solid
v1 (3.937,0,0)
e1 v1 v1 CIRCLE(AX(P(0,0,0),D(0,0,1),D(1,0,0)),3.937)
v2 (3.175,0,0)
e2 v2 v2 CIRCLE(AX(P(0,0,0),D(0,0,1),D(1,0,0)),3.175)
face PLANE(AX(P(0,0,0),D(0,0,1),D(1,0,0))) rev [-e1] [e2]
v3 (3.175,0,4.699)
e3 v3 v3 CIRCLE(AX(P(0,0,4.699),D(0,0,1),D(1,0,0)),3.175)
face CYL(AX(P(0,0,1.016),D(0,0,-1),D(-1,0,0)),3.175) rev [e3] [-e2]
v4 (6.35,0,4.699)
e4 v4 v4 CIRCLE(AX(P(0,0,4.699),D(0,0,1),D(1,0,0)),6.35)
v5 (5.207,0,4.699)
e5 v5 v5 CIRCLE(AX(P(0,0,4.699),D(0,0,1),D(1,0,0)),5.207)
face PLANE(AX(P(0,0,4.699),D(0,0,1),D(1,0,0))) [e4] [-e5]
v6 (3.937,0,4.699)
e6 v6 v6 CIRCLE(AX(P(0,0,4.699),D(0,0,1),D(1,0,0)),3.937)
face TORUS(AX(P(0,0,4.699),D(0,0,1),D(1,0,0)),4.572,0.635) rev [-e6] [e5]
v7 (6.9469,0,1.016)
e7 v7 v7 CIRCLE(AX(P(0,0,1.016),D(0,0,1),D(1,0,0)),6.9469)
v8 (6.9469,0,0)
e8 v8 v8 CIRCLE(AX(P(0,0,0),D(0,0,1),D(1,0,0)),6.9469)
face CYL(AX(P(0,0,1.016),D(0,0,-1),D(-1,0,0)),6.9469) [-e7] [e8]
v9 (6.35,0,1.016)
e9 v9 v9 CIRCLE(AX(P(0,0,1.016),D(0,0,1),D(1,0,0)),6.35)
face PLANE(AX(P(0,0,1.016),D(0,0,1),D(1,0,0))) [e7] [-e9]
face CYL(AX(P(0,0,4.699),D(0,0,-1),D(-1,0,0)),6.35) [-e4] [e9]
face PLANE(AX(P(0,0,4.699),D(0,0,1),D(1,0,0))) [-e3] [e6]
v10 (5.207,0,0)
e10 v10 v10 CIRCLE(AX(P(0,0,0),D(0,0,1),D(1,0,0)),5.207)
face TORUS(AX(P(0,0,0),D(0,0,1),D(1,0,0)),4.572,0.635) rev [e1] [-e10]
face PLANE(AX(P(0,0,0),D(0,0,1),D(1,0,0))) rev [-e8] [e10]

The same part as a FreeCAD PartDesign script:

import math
import FreeCAD as App
import Part
import Sketcher
Q = App.Units.Quantity

doc = App.newDocument("Part")
body = doc.addObject("PartDesign::Body", "Body")

# Sketch on XY plane
sketch1 = body.newObject("Sketcher::SketchObject", "Sketch")
sketch1.AttachmentSupport = (doc.getObject("XY_Plane"), [""])
sketch1.MapMode = "FlatFace"
sketch1.addGeometry([
    Part.Circle(App.Vector(0, 0, 0), App.Vector(0, 0, 1), 6.9),
    Part.Circle(App.Vector(0, 0, 0), App.Vector(0, 0, 1), 3.2),
], False)
sketch1.addConstraint([
    Sketcher.Constraint("Coincident", 0, 3, -1, 1),
    Sketcher.Constraint("Coincident", 1, 3, -1, 1),
    Sketcher.Constraint("Diameter", 1, Q("0.25 in")),
    Sketcher.Constraint("Diameter", 0, Q("0.547 in")),
])
pad1 = body.newObject("PartDesign::Pad", "Pad")
pad1.Profile = sketch1
pad1.Length = Q("0.04 in")

# Sketch on XY plane
sketch2 = body.newObject("Sketcher::SketchObject", "Sketch001")
sketch2.AttachmentSupport = (doc.getObject("XY_Plane"), [""])
sketch2.MapMode = "FlatFace"
sketch2.AttachmentOffset = App.Placement(App.Vector(0, 0, 0.04 * 25.4), App.Rotation())
sketch2.addGeometry([
    Part.Circle(App.Vector(0, 0, 0), App.Vector(0, 0, 1), 6.3),
    Part.Circle(App.Vector(0, 0, 0), App.Vector(0, 0, 1), 3.2),
], False)
sketch2.addConstraint([
    Sketcher.Constraint("Coincident", 0, 3, -1, 1),
    Sketcher.Constraint("Coincident", 1, 3, -1, 1),
    Sketcher.Constraint("Diameter", 0, Q("0.5 in")),
    Sketcher.Constraint("Diameter", 1, Q("0.25 in")),
])
pad2 = body.newObject("PartDesign::Pad", "Pad001")
pad2.Profile = sketch2
pad2.Length = Q("0.145 in")

# Sketch on YZ plane
sketch3 = body.newObject("Sketcher::SketchObject", "Sketch002")
sketch3.AttachmentSupport = (doc.getObject("YZ_Plane"), [""])
sketch3.MapMode = "FlatFace"
sketch3.addGeometry([
    Part.LineSegment(App.Vector(5.2, 4.7, 0), App.Vector(3.9, 4.7, 0)),
    Part.ArcOfCircle(Part.Circle(App.Vector(4.6, 4.7, 0), App.Vector(0, 0, 1), 0.6), math.radians(180), math.radians(360)),
    Part.LineSegment(App.Vector(3.9, 0, 0), App.Vector(5.2, 0, 0)),
    Part.ArcOfCircle(Part.Circle(App.Vector(4.6, 0, 0), App.Vector(0, 0, 1), 0.6), math.radians(0), math.radians(180)),
], False)
sketch3.addConstraint([
    Sketcher.Constraint("Coincident", 0, 1, 1, 2),
    Sketcher.Constraint("Coincident", 1, 1, 0, 2),
    Sketcher.Constraint("Coincident", 2, 1, 3, 2),
    Sketcher.Constraint("Coincident", 3, 1, 2, 2),
    Sketcher.Constraint("Horizontal", 0),
    Sketcher.Constraint("Horizontal", 2),
    Sketcher.Constraint("Equal", 1, 3),
    Sketcher.Constraint("PointOnObject", 3, 3, -1),
    Sketcher.Constraint("PointOnObject", 2, 1, -1),
    Sketcher.Constraint("Horizontal", 1, 3, 0, 1),
    Sketcher.Constraint("Vertical", 1, 3, 3, 3),
    Sketcher.Constraint("Radius", 1, Q("0.025 in")),
    Sketcher.Constraint("DistanceX", -1, 1, 1, 3, Q("0.18 in")),
    Sketcher.Constraint("DistanceY", -1, 1, 1, 3, Q("0.185 in")),
])
groove = body.newObject("PartDesign::Groove", "Groove")
groove.Profile = sketch3
groove.ReferenceAxis = (sketch3, ["V_Axis"])
groove.Angle = 360

doc.recompute()
